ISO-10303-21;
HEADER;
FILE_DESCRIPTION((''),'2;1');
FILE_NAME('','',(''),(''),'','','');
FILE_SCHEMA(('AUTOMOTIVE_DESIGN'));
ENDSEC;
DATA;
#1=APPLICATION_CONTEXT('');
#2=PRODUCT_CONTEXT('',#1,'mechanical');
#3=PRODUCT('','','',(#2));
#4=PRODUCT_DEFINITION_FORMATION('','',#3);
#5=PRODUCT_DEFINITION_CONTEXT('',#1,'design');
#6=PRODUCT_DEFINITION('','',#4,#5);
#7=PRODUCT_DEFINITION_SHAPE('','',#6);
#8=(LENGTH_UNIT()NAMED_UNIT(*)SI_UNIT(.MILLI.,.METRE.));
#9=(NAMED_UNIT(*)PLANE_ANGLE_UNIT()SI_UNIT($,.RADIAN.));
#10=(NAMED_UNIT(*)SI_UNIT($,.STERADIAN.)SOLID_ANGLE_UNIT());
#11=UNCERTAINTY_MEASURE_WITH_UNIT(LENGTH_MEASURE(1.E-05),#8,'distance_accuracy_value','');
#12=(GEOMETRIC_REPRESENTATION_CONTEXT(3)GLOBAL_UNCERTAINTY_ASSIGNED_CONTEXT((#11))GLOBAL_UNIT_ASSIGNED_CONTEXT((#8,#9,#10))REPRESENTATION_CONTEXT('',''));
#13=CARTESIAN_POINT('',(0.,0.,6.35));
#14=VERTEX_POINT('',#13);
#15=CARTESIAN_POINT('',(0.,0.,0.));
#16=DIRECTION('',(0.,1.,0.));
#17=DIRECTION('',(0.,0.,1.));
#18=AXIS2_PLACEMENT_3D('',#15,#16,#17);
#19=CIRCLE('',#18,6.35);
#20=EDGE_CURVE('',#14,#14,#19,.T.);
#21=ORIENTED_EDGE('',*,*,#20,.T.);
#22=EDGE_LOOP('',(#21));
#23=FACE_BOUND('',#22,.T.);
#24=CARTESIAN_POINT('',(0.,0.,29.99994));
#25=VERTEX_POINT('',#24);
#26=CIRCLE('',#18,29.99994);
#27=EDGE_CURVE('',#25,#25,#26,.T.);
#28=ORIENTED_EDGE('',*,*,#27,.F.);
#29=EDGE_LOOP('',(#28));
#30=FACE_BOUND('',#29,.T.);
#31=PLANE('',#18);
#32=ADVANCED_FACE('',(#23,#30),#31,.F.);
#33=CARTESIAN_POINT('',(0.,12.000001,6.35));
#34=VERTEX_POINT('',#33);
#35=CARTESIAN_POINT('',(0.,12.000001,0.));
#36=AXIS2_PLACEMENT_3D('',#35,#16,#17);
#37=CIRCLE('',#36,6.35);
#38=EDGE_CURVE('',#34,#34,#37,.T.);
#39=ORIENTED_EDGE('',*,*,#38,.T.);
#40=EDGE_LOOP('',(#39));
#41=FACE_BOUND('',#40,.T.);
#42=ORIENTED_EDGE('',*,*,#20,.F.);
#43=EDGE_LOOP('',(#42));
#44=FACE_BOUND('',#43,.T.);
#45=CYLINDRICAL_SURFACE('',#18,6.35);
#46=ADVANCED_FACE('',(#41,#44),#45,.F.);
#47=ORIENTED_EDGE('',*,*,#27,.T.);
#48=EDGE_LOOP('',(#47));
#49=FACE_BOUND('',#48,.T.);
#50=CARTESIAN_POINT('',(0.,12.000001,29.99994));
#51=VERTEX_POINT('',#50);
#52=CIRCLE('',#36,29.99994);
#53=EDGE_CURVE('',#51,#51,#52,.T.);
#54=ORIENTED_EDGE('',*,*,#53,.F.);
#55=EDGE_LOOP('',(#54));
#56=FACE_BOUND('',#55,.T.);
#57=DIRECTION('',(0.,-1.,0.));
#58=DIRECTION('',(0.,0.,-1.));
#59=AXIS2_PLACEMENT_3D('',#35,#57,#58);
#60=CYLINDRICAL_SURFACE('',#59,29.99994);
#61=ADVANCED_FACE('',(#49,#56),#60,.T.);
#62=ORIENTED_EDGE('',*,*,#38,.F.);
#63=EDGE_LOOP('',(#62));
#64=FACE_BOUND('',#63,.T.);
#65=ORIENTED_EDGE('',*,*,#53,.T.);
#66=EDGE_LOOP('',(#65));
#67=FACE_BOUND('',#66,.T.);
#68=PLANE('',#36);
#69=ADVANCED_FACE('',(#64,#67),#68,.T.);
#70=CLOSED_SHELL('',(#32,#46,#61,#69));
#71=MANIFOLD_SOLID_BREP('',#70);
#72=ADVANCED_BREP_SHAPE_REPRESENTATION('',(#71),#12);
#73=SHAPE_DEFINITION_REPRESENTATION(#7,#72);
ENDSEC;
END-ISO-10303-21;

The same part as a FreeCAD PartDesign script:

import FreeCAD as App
import Part
import Sketcher
from FreeCAD import Vector

doc = App.newDocument("Part")
params = doc.addObject("Spreadsheet::Sheet", "Params")
for row, (alias, value) in enumerate([
    ("pad1_length", "12.000001 mm"),
    ("sketch2_diameter", "12.7 mm"),
    ("pocket1_length", "12.000001 mm"),
], start=1):
    params.set(f"A{row}", alias)
    params.set(f"B{row}", "=" + value)
    params.setAlias(f"B{row}", alias)

body = doc.addObject("PartDesign::Body", "Body")

# Sketch on XZ plane
sketch1 = doc.addObject("Sketcher::SketchObject", "Sketch")
body.addObject(sketch1)
sketch1.AttachmentSupport = (doc.XZ_Plane, [""])
sketch1.MapMode = "FlatFace"
sketch1.addGeometry(Part.Circle(Vector(0, 0, 0), Vector(0, 0, 1), 30), False)
sketch1.addConstraint(Sketcher.Constraint("Coincident", 0, 3, -1, 1))
sketch1.addConstraint(Sketcher.Constraint("Diameter", 0, 59.99988))
pad1 = doc.addObject("PartDesign::Pad", "Pad")
body.addObject(pad1)
pad1.Profile = sketch1
pad1.setExpression("Length", "Params.pad1_length")
pad1.Reversed = True

# Sketch on XZ plane
sketch2 = doc.addObject("Sketcher::SketchObject", "Sketch001")
body.addObject(sketch2)
sketch2.AttachmentSupport = (doc.XZ_Plane, [""])
sketch2.MapMode = "FlatFace"
sketch2.AttachmentOffset = App.Placement(Vector(0, 0, -12.000001), App.Rotation())
sketch2.addGeometry(Part.Circle(Vector(0, 0, 0), Vector(0, 0, 1), 6), False)
sketch2.addConstraint(Sketcher.Constraint("Coincident", 0, 3, -1, 1))
sketch2.addConstraint(Sketcher.Constraint("Diameter", 0, 12.7))
sketch2.setExpression("Constraints[1]", "Params.sketch2_diameter")
pocket1 = doc.addObject("PartDesign::Pocket", "Pocket")
body.addObject(pocket1)
pocket1.Profile = sketch2
pocket1.setExpression("Length", "Params.pocket1_length")
pocket1.Reversed = True

doc.recompute()
